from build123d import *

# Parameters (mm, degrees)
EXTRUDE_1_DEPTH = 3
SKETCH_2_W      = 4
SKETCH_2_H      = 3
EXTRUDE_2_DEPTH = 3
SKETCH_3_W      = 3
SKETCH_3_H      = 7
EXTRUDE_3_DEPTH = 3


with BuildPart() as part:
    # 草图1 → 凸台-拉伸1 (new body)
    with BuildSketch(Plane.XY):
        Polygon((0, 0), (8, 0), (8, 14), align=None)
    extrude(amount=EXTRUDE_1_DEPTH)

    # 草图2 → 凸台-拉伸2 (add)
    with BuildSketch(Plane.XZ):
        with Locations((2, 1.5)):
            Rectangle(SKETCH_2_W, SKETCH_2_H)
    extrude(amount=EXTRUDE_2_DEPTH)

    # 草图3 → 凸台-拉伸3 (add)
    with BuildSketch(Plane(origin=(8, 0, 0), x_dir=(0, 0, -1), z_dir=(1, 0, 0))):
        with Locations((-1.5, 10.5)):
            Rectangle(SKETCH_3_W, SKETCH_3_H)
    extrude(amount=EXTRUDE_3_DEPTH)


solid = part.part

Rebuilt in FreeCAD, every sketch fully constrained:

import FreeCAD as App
import Part
import Sketcher

V = App.Vector
Q = App.Units.Quantity


def add_polygon(sketch, points):
    """Adds a closed chain of lines whose ends are joined by coincident constraints."""
    first, n = sketch.GeometryCount, len(points)
    for a, b in zip(points, points[1:] + points[:1]):
        sketch.addGeometry(Part.LineSegment(App.Vector(*a, 0), App.Vector(*b, 0)), False)
    for i in range(n):
        sketch.addConstraint(Sketcher.Constraint("Coincident", first + i, 2, first + (i + 1) % n, 1))

doc = App.newDocument("Part")
body = doc.addObject("PartDesign::Body", "Body")

sketch1 = body.newObject("Sketcher::SketchObject", "Sketch")
sketch1.AttachmentSupport = (doc.getObject("XY_Plane"), [""])
sketch1.MapMode = "FlatFace"
add_polygon(sketch1, [(0, 0), (8, 0), (8, 14)])
sketch1.addConstraint(Sketcher.Constraint("Horizontal", 0))
sketch1.addConstraint(Sketcher.Constraint("Vertical", 1))
sketch1.addConstraint(Sketcher.Constraint("Coincident", 2, 2, -1, 1))
sketch1.addConstraint(Sketcher.Constraint("DistanceX", 0, 1, 0, 2, Q("8 mm")))
sketch1.addConstraint(Sketcher.Constraint("DistanceY", 1, 1, 1, 2, Q("14 mm")))
pad1 = body.newObject("PartDesign::Pad", "Pad")
pad1.Profile = sketch1
pad1.Length = 3

sketch2 = body.newObject("Sketcher::SketchObject", "Sketch001")
sketch2.AttachmentSupport = (doc.getObject("XZ_Plane"), [""])
sketch2.MapMode = "FlatFace"
add_polygon(sketch2, [(0, 3), (0, 0), (4, 0), (4, 3)])
sketch2.addConstraint(Sketcher.Constraint("Vertical", 0))
sketch2.addConstraint(Sketcher.Constraint("Horizontal", 1))
sketch2.addConstraint(Sketcher.Constraint("Vertical", 2))
sketch2.addConstraint(Sketcher.Constraint("Horizontal", 3))
sketch2.addConstraint(Sketcher.Constraint("Coincident", 0, 2, -1, 1))
sketch2.addConstraint(Sketcher.Constraint("DistanceX", 1, 1, 1, 2, Q("4 mm")))
sketch2.addConstraint(Sketcher.Constraint("DistanceY", 0, 2, 0, 1, Q("3 mm")))
pad2 = body.newObject("PartDesign::Pad", "Pad001")
pad2.Profile = sketch2
pad2.Length = 3

sketch3 = body.newObject("Sketcher::SketchObject", "Sketch002")
sketch3.AttachmentSupport = (doc.getObject("YZ_Plane"), [""])
sketch3.MapMode = "FlatFace"
sketch3.AttachmentOffset = App.Placement(V(0, 0, 8), App.Rotation())
add_polygon(sketch3, [(14, 3), (7, 3), (7, 0), (14, 0)])
sketch3.addConstraint(Sketcher.Constraint("Horizontal", 0))
sketch3.addConstraint(Sketcher.Constraint("Vertical", 1))
sketch3.addConstraint(Sketcher.Constraint("Horizontal", 2))
sketch3.addConstraint(Sketcher.Constraint("Vertical", 3))
sketch3.addConstraint(Sketcher.Constraint("PointOnObject", 1, 2, -1))
sketch3.addConstraint(Sketcher.Constraint("DistanceX", 0, 2, 0, 1, Q("7 mm")))
sketch3.addConstraint(Sketcher.Constraint("DistanceY", 1, 2, 1, 1, Q("3 mm")))
sketch3.addConstraint(Sketcher.Constraint("DistanceX", -1, 1, 0, 2, Q("7 mm")))
pad3 = body.newObject("PartDesign::Pad", "Pad002")
pad3.Profile = sketch3
pad3.Length = 3

doc.recompute()
